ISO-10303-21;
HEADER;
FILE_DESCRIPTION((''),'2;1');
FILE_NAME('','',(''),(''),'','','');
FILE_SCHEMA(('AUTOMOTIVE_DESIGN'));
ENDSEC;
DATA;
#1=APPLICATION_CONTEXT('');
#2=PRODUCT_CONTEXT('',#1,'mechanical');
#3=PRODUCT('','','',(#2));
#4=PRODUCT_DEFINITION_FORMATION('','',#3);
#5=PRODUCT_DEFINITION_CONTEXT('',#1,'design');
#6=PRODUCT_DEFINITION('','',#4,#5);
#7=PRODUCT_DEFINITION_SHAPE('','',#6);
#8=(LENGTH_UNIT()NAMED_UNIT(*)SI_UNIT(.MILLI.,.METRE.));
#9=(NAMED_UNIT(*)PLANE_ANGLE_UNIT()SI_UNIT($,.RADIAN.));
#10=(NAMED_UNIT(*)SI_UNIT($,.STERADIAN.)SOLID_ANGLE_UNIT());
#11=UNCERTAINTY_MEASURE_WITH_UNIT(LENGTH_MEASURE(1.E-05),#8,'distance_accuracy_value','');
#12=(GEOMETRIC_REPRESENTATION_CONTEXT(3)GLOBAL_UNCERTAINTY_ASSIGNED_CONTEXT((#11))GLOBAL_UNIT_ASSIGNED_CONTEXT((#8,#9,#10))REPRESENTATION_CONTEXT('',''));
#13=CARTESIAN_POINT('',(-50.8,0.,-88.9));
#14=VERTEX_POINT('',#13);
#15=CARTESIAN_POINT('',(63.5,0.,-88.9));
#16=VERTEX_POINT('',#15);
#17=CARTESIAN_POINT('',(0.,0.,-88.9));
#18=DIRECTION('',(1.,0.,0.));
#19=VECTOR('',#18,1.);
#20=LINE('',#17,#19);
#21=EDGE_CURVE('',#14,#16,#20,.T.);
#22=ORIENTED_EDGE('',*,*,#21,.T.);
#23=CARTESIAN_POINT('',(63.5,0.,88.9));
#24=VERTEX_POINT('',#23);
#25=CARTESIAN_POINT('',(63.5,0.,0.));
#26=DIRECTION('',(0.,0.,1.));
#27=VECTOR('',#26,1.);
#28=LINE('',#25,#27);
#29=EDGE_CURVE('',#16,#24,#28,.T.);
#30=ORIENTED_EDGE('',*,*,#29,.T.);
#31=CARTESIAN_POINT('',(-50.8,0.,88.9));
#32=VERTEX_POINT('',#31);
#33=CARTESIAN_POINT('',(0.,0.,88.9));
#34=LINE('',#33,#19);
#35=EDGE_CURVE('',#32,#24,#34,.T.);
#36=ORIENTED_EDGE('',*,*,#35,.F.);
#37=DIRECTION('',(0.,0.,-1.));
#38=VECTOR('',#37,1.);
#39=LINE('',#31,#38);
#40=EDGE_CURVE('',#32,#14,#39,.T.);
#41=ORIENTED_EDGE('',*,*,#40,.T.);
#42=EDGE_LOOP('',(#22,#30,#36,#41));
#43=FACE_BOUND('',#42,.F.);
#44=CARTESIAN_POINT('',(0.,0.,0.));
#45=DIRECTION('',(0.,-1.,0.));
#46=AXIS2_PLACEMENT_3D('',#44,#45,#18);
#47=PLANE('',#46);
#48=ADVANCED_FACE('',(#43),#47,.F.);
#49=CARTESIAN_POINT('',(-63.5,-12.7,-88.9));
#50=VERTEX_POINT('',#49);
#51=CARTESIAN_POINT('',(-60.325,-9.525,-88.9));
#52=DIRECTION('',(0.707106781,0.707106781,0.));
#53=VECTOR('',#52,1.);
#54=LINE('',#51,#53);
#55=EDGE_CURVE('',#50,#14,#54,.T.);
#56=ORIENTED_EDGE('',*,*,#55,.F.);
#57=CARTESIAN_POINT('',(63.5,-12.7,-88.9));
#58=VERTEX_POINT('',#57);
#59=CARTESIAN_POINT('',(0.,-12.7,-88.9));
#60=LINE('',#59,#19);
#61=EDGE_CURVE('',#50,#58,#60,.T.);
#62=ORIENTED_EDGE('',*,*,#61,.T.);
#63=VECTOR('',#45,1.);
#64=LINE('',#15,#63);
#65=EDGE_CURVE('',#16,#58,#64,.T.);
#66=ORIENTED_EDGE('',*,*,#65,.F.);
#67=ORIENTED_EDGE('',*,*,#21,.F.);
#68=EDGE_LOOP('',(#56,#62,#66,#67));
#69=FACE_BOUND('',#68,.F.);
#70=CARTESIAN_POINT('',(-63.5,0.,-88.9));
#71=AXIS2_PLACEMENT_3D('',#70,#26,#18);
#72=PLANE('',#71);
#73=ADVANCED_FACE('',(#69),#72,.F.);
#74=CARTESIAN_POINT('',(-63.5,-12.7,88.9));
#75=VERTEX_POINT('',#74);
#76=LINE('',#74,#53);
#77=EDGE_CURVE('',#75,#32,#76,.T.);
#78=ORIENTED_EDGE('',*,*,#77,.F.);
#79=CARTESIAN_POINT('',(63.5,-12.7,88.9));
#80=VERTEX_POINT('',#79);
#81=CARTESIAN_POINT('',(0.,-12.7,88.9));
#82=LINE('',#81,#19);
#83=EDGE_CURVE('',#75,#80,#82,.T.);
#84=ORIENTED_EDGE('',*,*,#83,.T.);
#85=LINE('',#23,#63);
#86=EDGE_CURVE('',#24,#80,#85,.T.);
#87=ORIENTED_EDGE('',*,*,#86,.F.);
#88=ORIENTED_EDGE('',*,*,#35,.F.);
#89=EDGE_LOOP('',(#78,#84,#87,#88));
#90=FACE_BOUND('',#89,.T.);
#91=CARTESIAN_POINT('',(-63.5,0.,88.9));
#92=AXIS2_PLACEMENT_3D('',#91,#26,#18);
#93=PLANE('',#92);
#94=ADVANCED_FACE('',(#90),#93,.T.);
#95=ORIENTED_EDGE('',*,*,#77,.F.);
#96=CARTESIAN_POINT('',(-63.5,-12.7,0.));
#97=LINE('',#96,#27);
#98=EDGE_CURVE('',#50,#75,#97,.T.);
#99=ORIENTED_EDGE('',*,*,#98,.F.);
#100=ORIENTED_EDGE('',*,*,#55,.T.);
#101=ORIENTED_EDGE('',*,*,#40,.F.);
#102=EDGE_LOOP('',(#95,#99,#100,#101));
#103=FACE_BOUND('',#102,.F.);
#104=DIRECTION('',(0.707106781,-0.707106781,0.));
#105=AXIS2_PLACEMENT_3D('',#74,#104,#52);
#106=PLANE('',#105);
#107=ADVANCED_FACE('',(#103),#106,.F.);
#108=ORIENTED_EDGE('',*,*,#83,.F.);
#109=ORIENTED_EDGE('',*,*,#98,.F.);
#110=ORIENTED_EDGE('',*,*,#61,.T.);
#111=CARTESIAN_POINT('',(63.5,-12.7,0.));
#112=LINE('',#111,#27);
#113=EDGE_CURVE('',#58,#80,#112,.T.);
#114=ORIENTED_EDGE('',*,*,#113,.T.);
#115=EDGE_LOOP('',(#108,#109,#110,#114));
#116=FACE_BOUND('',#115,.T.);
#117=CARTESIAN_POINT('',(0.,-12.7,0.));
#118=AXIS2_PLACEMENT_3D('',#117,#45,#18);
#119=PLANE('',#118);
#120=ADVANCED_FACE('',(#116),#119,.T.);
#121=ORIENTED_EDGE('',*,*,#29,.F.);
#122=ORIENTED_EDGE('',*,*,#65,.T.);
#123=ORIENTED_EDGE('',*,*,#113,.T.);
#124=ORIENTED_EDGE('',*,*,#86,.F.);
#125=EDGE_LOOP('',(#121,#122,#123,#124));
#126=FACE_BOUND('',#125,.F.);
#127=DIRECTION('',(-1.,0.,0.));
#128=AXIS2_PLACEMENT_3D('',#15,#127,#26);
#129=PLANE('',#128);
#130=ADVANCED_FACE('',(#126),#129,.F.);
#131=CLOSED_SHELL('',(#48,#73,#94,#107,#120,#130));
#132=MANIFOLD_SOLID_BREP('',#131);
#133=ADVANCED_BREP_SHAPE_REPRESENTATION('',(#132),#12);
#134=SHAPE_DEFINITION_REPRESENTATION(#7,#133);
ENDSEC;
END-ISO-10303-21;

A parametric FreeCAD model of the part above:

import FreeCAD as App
import Part
import Sketcher
from FreeCAD import Vector
Q = App.Units.Quantity

doc = App.newDocument("Part")
params = doc.addObject("Spreadsheet::Sheet", "Params")
for row, (alias, value) in enumerate([
    ("sketch1_width", "5 in"),
    ("sketch1_height", "7 in"),
    ("pad1_length", "0.5 in"),
    ("sketch2_width", "0.5 in"),
], start=1):
    params.set(f"A{row}", alias)
    params.set(f"B{row}", "=" + value)
    params.setAlias(f"B{row}", alias)

body = doc.addObject("PartDesign::Body", "Body")

sketch1 = body.newObject("Sketcher::SketchObject", "Sketch")
sketch1.AttachmentSupport = (doc.getObject("XZ_Plane"), [""])
sketch1.MapMode = "FlatFace"
sketch1.addGeometry(Part.LineSegment(Vector(-63.5, 88.9, 0), Vector(-63.5, -88.9, 0)), False)
sketch1.addGeometry(Part.LineSegment(Vector(-63.5, -88.9, 0), Vector(63.5, -88.9, 0)), False)
sketch1.addGeometry(Part.LineSegment(Vector(63.5, -88.9, 0), Vector(63.5, 88.9, 0)), False)
sketch1.addGeometry(Part.LineSegment(Vector(63.5, 88.9, 0), Vector(-63.5, 88.9, 0)), False)
sketch1.addConstraint(Sketcher.Constraint("Coincident", 0, 2, 1, 1))
sketch1.addConstraint(Sketcher.Constraint("Coincident", 1, 2, 2, 1))
sketch1.addConstraint(Sketcher.Constraint("Coincident", 2, 2, 3, 1))
sketch1.addConstraint(Sketcher.Constraint("Coincident", 3, 2, 0, 1))
sketch1.addConstraint(Sketcher.Constraint("Vertical", 0))
sketch1.addConstraint(Sketcher.Constraint("Horizontal", 1))
sketch1.addConstraint(Sketcher.Constraint("Vertical", 2))
sketch1.addConstraint(Sketcher.Constraint("Horizontal", 3))
sketch1.addConstraint(Sketcher.Constraint("Symmetric", 0, 2, 2, 2, -1, 1))
sketch1.addConstraint(Sketcher.Constraint("DistanceX", 1, 1, 1, 2, Q("5 in")))
sketch1.addConstraint(Sketcher.Constraint("DistanceY", 0, 2, 0, 1, Q("7 in")))
sketch1.setExpression("Constraints[9]", "Params.sketch1_width")
sketch1.setExpression("Constraints[10]", "Params.sketch1_height")
pad1 = body.newObject("PartDesign::Pad", "Pad")
pad1.Profile = sketch1
pad1.setExpression("Length", "Params.pad1_length")

sketch2 = body.newObject("Sketcher::SketchObject", "Sketch001")
sketch2.AttachmentSupport = (doc.getObject("XY_Plane"), [""])
sketch2.MapMode = "FlatFace"
sketch2.AttachmentOffset = App.Placement(Vector(0, 0, 3.5 * 25.4), App.Rotation())
sketch2.addGeometry(Part.LineSegment(Vector(-63.5, -12.7, 0), Vector(-50.8, 0, 0)), False)
sketch2.addGeometry(Part.LineSegment(Vector(-50.8, 0, 0), Vector(-63.5, 0, 0)), False)
sketch2.addGeometry(Part.LineSegment(Vector(-63.5, 0, 0), Vector(-63.5, -12.7, 0)), False)
sketch2.addConstraint(Sketcher.Constraint("Coincident", 0, 2, 1, 1))
sketch2.addConstraint(Sketcher.Constraint("Coincident", 1, 2, 2, 1))
sketch2.addConstraint(Sketcher.Constraint("Coincident", 2, 2, 0, 1))
sketch2.addConstraint(Sketcher.Constraint("Horizontal", 1))
sketch2.addConstraint(Sketcher.Constraint("Vertical", 2))
sketch2.addConstraint(Sketcher.Constraint("PointOnObject", 0, 2, -1))
sketch2.addConstraint(Sketcher.Constraint("Equal", 1, 2))
sketch2.addConstraint(Sketcher.Constraint("DistanceX", 1, 2, 1, 1, Q("0.5 in")))
sketch2.addConstraint(Sketcher.Constraint("DistanceX", 0, 2, -1, 1, Q("2 in")))
sketch2.setExpression("Constraints[7]", "Params.sketch2_width")
pocket1 = body.newObject("PartDesign::Pocket", "Pocket")
pocket1.Profile = sketch2
pocket1.Type = "ThroughAll"

doc.recompute()
